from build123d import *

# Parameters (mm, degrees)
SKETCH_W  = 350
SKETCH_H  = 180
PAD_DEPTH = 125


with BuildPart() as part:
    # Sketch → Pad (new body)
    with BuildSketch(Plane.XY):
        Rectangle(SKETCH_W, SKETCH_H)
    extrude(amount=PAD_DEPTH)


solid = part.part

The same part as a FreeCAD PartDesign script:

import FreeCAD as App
import Part
import Sketcher
from FreeCAD import Vector
Q = App.Units.Quantity


def add_polygon(sketch, points):
    """Adds a closed chain of lines whose ends are joined by coincident constraints."""
    first, n = sketch.GeometryCount, len(points)
    for a, b in zip(points, points[1:] + points[:1]):
        sketch.addGeometry(Part.LineSegment(App.Vector(*a, 0), App.Vector(*b, 0)), False)
    for i in range(n):
        sketch.addConstraint(Sketcher.Constraint("Coincident", first + i, 2, first + (i + 1) % n, 1))

doc = App.newDocument("Part")
body = doc.addObject("PartDesign::Body", "Body")

sketch1 = body.newObject("Sketcher::SketchObject", "Sketch")
sketch1.AttachmentSupport = (doc.getObject("XY_Plane"), [""])
sketch1.MapMode = "FlatFace"
add_polygon(sketch1, [(-175, 90), (-175, -90), (175, -90), (175, 90)])
sketch1.addConstraint([
    Sketcher.Constraint("Vertical", 0),
    Sketcher.Constraint("Horizontal", 1),
    Sketcher.Constraint("Vertical", 2),
    Sketcher.Constraint("Horizontal", 3),
    Sketcher.Constraint("Symmetric", 0, 2, 2, 2, -1, 1),
    Sketcher.Constraint("DistanceX", 1, 1, 1, 2, Q("350 mm")),
    Sketcher.Constraint("DistanceY", 0, 2, 0, 1, Q("180 mm")),
])
pad1 = body.newObject("PartDesign::Pad", "Pad")
pad1.Profile = sketch1
pad1.Length = 125

doc.recompute()
